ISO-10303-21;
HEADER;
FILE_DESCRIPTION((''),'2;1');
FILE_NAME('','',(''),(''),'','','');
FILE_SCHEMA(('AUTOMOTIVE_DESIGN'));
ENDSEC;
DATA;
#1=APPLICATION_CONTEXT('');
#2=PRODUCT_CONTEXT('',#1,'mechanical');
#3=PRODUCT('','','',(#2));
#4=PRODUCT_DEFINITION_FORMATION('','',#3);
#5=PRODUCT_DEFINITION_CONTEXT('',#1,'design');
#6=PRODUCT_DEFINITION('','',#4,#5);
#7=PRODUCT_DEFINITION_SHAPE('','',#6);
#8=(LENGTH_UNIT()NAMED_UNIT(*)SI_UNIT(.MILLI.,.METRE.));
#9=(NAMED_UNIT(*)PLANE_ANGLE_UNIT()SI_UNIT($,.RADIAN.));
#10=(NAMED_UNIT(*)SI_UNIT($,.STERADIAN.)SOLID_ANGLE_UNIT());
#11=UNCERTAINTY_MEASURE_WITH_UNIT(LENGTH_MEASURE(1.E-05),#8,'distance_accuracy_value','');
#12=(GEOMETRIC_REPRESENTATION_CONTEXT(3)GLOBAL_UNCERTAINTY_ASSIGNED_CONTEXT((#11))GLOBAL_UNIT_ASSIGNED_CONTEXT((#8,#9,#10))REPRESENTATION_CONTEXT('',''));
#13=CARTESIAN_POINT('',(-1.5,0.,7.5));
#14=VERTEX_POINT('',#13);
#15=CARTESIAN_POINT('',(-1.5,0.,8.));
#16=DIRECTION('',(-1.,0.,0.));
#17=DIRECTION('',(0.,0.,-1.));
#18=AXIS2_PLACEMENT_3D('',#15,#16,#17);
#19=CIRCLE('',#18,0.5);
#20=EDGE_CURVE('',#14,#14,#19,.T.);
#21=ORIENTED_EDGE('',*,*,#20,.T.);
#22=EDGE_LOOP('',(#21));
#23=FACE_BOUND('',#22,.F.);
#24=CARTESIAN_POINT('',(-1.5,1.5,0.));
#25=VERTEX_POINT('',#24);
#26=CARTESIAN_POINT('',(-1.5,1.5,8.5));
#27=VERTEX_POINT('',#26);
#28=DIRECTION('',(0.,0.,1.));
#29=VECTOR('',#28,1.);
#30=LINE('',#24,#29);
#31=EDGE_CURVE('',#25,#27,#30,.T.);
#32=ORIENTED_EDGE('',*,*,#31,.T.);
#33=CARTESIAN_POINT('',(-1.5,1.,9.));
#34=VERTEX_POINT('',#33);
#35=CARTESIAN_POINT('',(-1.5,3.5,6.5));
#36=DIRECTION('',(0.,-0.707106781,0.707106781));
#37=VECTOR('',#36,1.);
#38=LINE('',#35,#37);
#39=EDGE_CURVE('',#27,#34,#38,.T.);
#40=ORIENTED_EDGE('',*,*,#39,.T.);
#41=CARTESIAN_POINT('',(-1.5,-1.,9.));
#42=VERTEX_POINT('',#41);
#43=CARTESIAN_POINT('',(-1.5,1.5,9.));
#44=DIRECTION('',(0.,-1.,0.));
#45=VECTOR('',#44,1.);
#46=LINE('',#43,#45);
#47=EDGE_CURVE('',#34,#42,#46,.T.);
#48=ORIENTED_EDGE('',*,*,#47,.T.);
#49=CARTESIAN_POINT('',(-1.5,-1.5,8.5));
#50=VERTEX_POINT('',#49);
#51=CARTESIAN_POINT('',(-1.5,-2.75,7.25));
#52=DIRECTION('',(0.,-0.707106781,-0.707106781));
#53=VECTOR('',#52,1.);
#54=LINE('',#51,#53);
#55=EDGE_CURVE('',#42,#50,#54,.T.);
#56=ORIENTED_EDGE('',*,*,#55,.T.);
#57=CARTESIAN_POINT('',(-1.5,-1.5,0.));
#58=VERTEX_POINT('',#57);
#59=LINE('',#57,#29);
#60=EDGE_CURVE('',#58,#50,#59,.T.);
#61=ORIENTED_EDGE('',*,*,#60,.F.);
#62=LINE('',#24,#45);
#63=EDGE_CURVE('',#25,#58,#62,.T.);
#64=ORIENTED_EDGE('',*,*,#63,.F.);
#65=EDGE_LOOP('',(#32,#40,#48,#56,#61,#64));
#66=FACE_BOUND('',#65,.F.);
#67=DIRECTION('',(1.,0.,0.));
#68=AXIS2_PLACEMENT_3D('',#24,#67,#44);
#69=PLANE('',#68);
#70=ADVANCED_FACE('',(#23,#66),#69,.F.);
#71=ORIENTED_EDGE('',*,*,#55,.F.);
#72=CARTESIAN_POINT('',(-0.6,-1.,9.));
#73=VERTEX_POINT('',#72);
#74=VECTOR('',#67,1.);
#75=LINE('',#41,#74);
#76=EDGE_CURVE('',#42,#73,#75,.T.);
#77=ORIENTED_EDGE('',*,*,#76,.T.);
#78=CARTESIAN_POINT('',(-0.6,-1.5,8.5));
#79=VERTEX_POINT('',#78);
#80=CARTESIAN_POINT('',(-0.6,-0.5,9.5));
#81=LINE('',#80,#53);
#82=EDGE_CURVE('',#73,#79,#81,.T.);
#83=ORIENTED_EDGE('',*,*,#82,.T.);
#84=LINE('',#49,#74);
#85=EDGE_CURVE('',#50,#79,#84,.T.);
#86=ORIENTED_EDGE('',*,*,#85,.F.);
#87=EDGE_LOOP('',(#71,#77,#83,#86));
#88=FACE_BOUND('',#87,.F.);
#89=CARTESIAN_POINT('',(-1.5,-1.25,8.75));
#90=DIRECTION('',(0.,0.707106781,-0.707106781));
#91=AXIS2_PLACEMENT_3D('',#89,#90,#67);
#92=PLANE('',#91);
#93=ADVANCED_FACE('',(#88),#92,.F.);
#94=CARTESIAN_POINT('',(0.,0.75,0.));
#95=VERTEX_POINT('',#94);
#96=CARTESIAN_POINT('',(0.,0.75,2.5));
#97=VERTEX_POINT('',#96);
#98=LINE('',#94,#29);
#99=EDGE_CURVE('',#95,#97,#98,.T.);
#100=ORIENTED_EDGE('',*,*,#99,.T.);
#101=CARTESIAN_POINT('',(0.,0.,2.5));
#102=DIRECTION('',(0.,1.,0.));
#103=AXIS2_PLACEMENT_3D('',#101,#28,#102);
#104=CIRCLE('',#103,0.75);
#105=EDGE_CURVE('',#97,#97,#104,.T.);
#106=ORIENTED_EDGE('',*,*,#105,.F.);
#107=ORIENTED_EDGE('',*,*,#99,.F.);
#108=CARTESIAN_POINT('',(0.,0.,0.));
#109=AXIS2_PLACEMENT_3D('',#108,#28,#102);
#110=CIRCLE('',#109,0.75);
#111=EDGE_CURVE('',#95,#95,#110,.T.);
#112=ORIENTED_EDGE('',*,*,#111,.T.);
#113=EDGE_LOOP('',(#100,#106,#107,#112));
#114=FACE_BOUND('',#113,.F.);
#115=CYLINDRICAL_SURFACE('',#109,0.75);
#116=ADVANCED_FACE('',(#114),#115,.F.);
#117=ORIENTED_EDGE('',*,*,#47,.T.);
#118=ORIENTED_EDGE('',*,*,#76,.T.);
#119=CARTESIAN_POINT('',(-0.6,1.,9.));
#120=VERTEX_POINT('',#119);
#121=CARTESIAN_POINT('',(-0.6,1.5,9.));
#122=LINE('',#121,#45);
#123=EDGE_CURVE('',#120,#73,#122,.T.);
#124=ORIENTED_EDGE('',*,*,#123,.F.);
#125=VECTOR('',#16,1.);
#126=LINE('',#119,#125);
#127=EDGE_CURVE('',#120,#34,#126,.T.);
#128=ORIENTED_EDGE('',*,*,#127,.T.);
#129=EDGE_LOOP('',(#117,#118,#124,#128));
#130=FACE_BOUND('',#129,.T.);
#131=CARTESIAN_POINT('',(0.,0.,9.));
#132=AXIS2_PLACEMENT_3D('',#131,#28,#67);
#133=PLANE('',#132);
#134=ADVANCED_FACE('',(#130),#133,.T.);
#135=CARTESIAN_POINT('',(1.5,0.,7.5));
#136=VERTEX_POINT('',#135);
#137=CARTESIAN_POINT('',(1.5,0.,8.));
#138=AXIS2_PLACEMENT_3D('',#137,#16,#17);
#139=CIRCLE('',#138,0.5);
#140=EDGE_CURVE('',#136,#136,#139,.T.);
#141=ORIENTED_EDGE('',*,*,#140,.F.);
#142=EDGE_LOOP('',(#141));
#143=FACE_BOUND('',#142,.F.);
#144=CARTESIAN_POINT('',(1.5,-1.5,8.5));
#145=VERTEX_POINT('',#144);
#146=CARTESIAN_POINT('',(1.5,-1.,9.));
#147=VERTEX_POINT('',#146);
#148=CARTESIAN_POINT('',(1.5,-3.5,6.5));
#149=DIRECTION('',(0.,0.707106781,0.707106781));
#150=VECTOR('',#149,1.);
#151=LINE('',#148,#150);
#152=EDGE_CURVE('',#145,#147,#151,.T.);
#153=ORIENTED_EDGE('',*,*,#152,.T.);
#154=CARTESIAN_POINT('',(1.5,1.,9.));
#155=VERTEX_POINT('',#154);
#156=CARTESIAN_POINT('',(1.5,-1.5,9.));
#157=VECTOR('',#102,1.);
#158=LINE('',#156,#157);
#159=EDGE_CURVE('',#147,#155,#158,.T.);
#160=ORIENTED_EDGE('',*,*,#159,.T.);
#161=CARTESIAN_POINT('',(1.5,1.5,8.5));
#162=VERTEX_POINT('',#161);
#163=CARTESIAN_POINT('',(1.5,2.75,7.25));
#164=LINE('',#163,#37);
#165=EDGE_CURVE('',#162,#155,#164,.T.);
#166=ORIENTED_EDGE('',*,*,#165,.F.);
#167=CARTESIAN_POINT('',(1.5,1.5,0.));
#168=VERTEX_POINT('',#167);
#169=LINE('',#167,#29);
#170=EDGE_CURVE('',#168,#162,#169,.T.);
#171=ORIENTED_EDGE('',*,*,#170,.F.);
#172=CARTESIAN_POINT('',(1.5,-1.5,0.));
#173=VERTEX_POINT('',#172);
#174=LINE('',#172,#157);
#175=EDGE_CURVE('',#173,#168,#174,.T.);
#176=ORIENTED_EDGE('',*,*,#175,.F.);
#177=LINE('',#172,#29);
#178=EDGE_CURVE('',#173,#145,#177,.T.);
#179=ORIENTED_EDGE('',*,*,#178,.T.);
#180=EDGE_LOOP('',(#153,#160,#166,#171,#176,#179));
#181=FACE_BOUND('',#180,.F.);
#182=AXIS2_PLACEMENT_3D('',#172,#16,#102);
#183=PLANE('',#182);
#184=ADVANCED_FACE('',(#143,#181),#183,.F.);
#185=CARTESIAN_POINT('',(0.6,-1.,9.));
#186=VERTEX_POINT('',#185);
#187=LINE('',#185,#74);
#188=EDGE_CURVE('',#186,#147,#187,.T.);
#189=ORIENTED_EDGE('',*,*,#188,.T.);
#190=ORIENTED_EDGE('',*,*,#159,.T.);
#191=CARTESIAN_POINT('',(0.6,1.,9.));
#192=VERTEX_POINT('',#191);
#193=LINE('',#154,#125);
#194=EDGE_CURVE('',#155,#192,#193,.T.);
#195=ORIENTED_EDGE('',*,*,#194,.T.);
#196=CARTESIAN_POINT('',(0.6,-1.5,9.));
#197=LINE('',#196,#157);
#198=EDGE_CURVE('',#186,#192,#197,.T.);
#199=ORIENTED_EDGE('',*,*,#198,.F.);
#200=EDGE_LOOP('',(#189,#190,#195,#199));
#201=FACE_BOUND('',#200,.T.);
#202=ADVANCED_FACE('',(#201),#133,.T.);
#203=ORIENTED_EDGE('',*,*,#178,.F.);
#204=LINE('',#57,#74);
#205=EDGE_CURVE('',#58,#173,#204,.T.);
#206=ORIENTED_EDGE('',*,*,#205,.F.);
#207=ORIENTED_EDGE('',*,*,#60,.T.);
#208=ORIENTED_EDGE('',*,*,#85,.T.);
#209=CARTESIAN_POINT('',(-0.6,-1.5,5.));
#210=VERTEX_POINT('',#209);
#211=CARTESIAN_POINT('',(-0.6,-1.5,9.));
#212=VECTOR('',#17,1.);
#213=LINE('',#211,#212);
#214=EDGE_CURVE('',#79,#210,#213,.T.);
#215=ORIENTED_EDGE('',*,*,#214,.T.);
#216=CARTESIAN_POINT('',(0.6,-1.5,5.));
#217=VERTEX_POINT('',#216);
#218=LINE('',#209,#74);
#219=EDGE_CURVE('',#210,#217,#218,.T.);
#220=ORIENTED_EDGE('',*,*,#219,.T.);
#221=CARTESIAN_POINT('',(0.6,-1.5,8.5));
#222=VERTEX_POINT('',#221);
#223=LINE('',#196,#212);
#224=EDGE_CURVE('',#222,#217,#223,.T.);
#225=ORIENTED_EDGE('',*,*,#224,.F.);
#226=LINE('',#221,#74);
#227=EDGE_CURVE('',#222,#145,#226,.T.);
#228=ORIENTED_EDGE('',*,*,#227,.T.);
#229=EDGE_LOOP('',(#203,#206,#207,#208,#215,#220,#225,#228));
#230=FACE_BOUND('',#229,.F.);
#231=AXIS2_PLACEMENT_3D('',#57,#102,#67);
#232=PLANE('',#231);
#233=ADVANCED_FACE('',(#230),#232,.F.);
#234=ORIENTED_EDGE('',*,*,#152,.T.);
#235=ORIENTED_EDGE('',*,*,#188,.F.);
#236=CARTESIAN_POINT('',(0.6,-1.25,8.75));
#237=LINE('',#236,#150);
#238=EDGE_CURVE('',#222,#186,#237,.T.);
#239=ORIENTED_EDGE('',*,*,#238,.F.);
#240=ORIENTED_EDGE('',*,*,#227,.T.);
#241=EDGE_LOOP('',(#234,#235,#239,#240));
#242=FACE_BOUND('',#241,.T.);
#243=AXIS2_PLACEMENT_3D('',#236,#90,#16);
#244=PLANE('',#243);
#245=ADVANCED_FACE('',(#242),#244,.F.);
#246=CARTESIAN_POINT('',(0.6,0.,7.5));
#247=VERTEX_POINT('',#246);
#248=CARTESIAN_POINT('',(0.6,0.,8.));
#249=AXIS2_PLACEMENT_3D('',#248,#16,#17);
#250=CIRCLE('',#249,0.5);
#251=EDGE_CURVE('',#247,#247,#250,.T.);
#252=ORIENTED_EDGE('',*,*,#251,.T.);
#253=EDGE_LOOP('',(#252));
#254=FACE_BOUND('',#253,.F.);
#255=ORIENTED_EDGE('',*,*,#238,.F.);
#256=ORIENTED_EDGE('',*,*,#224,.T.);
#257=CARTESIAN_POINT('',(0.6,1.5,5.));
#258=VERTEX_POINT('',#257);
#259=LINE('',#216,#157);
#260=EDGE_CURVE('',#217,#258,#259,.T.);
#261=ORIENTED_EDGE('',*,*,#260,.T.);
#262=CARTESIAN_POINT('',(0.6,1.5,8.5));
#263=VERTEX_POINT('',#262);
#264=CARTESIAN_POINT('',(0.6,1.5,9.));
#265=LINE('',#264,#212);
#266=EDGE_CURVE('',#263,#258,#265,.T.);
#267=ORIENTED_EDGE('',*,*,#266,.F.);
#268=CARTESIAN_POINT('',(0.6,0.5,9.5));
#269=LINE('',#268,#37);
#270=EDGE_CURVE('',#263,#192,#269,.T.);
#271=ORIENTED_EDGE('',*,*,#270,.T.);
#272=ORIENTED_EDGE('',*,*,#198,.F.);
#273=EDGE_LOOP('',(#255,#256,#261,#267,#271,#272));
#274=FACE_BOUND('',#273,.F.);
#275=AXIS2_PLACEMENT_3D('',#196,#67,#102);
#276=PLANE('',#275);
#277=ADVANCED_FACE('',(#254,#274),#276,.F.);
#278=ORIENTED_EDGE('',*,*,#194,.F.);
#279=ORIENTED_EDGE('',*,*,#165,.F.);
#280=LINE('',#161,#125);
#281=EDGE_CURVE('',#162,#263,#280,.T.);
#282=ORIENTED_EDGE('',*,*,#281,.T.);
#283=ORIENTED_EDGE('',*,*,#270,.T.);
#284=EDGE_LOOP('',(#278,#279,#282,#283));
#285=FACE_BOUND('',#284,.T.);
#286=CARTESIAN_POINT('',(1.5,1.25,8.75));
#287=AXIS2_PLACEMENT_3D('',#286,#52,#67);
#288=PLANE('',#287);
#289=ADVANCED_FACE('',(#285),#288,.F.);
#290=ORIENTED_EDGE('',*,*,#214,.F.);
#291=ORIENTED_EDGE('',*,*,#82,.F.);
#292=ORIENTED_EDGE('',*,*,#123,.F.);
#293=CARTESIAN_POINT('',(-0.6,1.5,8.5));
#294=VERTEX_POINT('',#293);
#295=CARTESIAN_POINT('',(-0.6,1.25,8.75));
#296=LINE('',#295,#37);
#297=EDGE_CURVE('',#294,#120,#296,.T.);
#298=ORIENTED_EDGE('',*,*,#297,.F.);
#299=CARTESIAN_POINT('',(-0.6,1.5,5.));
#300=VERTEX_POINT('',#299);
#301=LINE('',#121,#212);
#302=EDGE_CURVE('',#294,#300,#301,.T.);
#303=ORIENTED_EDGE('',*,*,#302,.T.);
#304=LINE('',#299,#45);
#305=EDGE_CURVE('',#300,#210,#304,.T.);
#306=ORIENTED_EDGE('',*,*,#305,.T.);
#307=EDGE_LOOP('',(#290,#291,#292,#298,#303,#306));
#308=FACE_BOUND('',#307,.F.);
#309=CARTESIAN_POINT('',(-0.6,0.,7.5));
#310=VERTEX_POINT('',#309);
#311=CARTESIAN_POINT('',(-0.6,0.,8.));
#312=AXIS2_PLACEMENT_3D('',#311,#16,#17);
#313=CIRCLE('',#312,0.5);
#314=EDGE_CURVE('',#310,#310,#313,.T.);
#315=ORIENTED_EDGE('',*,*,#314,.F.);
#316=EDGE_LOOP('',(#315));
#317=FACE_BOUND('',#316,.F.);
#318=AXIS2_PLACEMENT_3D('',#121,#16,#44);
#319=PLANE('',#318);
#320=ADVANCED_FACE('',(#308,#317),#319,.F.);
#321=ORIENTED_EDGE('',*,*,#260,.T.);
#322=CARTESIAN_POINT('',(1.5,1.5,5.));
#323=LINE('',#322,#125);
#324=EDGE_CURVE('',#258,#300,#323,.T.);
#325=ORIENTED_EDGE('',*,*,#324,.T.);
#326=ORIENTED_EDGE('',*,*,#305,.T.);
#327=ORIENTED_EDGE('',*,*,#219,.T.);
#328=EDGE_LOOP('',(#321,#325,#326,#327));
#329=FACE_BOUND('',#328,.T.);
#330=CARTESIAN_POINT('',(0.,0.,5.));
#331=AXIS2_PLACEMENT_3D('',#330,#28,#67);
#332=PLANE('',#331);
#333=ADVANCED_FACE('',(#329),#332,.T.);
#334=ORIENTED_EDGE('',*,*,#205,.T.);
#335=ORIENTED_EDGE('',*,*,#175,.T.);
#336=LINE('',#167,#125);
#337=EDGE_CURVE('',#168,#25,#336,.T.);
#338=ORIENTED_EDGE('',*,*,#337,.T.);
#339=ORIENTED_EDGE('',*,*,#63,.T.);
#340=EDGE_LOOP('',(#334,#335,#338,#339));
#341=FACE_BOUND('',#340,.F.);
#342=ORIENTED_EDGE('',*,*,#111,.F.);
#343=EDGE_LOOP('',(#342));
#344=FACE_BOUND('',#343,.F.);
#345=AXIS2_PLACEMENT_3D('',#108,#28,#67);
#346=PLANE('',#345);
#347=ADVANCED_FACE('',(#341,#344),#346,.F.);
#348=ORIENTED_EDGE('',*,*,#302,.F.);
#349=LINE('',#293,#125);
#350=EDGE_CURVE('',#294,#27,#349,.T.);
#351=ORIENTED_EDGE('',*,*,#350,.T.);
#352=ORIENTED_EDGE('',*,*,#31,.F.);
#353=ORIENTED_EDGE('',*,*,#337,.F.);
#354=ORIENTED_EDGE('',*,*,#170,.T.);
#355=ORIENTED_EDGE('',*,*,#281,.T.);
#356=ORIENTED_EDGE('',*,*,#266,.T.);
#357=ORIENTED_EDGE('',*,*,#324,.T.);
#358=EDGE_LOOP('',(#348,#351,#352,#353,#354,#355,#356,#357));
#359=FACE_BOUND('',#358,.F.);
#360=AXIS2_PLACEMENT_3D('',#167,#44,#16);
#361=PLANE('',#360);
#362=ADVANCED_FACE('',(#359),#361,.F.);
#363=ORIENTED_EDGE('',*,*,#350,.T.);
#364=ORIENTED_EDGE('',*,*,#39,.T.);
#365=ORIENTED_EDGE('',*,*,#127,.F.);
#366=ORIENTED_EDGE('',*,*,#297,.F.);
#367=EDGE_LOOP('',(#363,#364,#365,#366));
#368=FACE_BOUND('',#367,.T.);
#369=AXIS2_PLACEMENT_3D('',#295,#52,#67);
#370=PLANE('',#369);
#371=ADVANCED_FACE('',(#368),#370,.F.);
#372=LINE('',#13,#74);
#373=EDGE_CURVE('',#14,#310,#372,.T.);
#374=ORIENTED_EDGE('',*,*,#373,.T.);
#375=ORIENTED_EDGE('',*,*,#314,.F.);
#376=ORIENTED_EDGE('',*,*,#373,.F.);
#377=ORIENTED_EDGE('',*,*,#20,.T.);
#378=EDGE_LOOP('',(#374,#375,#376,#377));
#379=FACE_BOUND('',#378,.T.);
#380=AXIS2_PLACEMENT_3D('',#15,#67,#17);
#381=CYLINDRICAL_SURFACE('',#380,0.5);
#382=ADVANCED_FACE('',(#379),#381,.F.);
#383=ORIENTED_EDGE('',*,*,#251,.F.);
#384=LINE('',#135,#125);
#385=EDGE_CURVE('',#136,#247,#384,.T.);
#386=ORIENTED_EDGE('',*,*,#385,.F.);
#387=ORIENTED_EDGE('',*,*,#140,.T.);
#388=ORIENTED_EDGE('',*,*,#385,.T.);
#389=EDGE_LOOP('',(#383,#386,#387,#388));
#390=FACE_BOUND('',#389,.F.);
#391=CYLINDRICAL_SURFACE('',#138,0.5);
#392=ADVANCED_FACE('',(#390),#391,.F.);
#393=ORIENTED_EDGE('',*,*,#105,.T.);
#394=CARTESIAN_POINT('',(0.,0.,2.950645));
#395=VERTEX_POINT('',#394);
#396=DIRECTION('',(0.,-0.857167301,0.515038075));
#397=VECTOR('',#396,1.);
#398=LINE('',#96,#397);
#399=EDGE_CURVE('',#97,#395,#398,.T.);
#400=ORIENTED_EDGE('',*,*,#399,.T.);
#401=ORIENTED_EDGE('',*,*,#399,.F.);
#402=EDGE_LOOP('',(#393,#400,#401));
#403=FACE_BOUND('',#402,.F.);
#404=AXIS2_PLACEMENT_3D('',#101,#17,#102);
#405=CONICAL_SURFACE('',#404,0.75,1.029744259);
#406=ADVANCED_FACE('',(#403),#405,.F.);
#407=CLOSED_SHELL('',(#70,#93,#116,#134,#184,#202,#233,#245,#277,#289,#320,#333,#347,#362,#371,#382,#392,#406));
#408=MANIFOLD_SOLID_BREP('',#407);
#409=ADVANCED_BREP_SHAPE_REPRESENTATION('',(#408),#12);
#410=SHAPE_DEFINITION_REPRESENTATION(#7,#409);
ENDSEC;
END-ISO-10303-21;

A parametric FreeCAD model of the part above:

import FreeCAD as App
import Part
import Sketcher


def edges_at(feature, points):
    """Names of the edges that pass closest to the given points."""
    edges = feature.Shape.Edges
    near = lambda p: min(range(len(edges)), key=lambda i: edges[i].distToShape(Part.Vertex(*p))[0])
    return sorted({f"Edge{near(p) + 1}" for p in points})

doc = App.newDocument("Part")
body = doc.addObject("PartDesign::Body", "Body")

sketch1 = body.newObject("Sketcher::SketchObject", "Sketch")
sketch1.AttachmentSupport = (doc.getObject("XY_Plane"), [""])
sketch1.MapMode = "FlatFace"
sketch1.addGeometry([
    Part.LineSegment(App.Vector(-1.5, 1.5, 0), App.Vector(-1.5, -1.5, 0)),
    Part.LineSegment(App.Vector(-1.5, -1.5, 0), App.Vector(1.5, -1.5, 0)),
    Part.LineSegment(App.Vector(1.5, -1.5, 0), App.Vector(1.5, 1.5, 0)),
    Part.LineSegment(App.Vector(1.5, 1.5, 0), App.Vector(-1.5, 1.5, 0)),
], False)
sketch1.addConstraint([
    Sketcher.Constraint("Coincident", 0, 2, 1, 1),
    Sketcher.Constraint("Coincident", 1, 2, 2, 1),
    Sketcher.Constraint("Coincident", 2, 2, 3, 1),
    Sketcher.Constraint("Coincident", 3, 2, 0, 1),
    Sketcher.Constraint("Vertical", 0),
    Sketcher.Constraint("Horizontal", 1),
    Sketcher.Constraint("Vertical", 2),
    Sketcher.Constraint("Horizontal", 3),
    Sketcher.Constraint("Symmetric", 0, 2, 2, 2, -1, 1),
    Sketcher.Constraint("Equal", 3, 0),
    Sketcher.Constraint("DistanceX", 1, 1, 1, 2, 3.0),
])
pad1 = body.newObject("PartDesign::Pad", "Pad")
pad1.Profile = sketch1
pad1.Length = 9

sketch2 = body.newObject("Sketcher::SketchObject", "Sketch001")
sketch2.AttachmentSupport = (doc.getObject("XY_Plane"), [""])
sketch2.MapMode = "FlatFace"
sketch2.AttachmentOffset = App.Placement(App.Vector(0, 0, 9), App.Rotation())
sketch2.addGeometry([
    Part.LineSegment(App.Vector(0.6, -1.5, 0), App.Vector(0.6, 1.5, 0)),
    Part.LineSegment(App.Vector(0.6, 1.5, 0), App.Vector(-0.6, 1.5, 0)),
    Part.LineSegment(App.Vector(-0.6, 1.5, 0), App.Vector(-0.6, -1.5, 0)),
    Part.LineSegment(App.Vector(-0.6, -1.5, 0), App.Vector(0.6, -1.5, 0)),
], False)
sketch2.addConstraint([
    Sketcher.Constraint("Coincident", 0, 2, 1, 1),
    Sketcher.Constraint("Coincident", 1, 2, 2, 1),
    Sketcher.Constraint("Coincident", 2, 2, 3, 1),
    Sketcher.Constraint("Coincident", 3, 2, 0, 1),
    Sketcher.Constraint("Vertical", 0),
    Sketcher.Constraint("Horizontal", 1),
    Sketcher.Constraint("Vertical", 2),
    Sketcher.Constraint("Horizontal", 3),
    Sketcher.Constraint("Symmetric", 0, 2, 2, 2, -1, 1),
    Sketcher.Constraint("DistanceX", 1, 2, 1, 1, 1.2),
    Sketcher.Constraint("DistanceY", 0, 1, 0, 2, 3.0),
])
pocket1 = body.newObject("PartDesign::Pocket", "Pocket")
pocket1.Profile = sketch2
pocket1.Length = 4

sketch3 = body.newObject("Sketcher::SketchObject", "Sketch002")
sketch3.AttachmentSupport = (doc.getObject("YZ_Plane"), [""])
sketch3.MapMode = "FlatFace"
sketch3.AttachmentOffset = App.Placement(App.Vector(0, 0, 1.5), App.Rotation())
sketch3.addGeometry(Part.Circle(App.Vector(0, 8, 0), App.Vector(0, 0, 1), 0.5), False)
sketch3.addConstraint([
    Sketcher.Constraint("PointOnObject", 0, 3, -2),
    Sketcher.Constraint("Diameter", 0, 1.0),
    Sketcher.Constraint("DistanceY", -1, 1, 0, 3, 8.0),
])
doc.recompute()
hole = body.newObject("PartDesign::Hole", "Hole")
hole.Profile = sketch3
hole.ThreadType = "None"
hole.Diameter = 1
hole.DepthType = "Dimension"
hole.Depth = 0.9
hole.DrillPoint = "Flat"
doc.recompute()

mirrored = body.newObject("PartDesign::Mirrored", "Mirrored")
mirrored.Originals = [hole]
mirrored.MirrorPlane = (doc.getObject("YZ_Plane"), [""])
body.Tip = mirrored

sketch4 = body.newObject("Sketcher::SketchObject", "Sketch003")
sketch4.AttachmentSupport = (doc.getObject("XY_Plane"), [""])
sketch4.MapMode = "FlatFace"
sketch4.addGeometry(Part.Circle(App.Vector(0, 0, 0), App.Vector(0, 0, 1), 0.8), False)
sketch4.addConstraint([
    Sketcher.Constraint("Coincident", 0, 3, -1, 1),
    Sketcher.Constraint("Diameter", 0, 1.5),
])
doc.recompute()
hole2 = body.newObject("PartDesign::Hole", "Hole001")
hole2.Profile = sketch4
hole2.ThreadType = "None"
hole2.Diameter = 1.5
hole2.DepthType = "Dimension"
hole2.Depth = 2.5
hole2.DrillPoint = "Angled"
hole2.DrillPointAngle = 118
hole2.Reversed = True
doc.recompute()

chamfer = body.newObject("PartDesign::Chamfer", "Chamfer")
chamfer.Base = (hole2, edges_at(hole2, [
    (1.05, -1.5, 9),
    (1.05, 1.5, 9),
    (-1.05, 1.5, 9),
    (-1.05, -1.5, 9),
]))
chamfer.Size = 0.5

doc.recompute()
